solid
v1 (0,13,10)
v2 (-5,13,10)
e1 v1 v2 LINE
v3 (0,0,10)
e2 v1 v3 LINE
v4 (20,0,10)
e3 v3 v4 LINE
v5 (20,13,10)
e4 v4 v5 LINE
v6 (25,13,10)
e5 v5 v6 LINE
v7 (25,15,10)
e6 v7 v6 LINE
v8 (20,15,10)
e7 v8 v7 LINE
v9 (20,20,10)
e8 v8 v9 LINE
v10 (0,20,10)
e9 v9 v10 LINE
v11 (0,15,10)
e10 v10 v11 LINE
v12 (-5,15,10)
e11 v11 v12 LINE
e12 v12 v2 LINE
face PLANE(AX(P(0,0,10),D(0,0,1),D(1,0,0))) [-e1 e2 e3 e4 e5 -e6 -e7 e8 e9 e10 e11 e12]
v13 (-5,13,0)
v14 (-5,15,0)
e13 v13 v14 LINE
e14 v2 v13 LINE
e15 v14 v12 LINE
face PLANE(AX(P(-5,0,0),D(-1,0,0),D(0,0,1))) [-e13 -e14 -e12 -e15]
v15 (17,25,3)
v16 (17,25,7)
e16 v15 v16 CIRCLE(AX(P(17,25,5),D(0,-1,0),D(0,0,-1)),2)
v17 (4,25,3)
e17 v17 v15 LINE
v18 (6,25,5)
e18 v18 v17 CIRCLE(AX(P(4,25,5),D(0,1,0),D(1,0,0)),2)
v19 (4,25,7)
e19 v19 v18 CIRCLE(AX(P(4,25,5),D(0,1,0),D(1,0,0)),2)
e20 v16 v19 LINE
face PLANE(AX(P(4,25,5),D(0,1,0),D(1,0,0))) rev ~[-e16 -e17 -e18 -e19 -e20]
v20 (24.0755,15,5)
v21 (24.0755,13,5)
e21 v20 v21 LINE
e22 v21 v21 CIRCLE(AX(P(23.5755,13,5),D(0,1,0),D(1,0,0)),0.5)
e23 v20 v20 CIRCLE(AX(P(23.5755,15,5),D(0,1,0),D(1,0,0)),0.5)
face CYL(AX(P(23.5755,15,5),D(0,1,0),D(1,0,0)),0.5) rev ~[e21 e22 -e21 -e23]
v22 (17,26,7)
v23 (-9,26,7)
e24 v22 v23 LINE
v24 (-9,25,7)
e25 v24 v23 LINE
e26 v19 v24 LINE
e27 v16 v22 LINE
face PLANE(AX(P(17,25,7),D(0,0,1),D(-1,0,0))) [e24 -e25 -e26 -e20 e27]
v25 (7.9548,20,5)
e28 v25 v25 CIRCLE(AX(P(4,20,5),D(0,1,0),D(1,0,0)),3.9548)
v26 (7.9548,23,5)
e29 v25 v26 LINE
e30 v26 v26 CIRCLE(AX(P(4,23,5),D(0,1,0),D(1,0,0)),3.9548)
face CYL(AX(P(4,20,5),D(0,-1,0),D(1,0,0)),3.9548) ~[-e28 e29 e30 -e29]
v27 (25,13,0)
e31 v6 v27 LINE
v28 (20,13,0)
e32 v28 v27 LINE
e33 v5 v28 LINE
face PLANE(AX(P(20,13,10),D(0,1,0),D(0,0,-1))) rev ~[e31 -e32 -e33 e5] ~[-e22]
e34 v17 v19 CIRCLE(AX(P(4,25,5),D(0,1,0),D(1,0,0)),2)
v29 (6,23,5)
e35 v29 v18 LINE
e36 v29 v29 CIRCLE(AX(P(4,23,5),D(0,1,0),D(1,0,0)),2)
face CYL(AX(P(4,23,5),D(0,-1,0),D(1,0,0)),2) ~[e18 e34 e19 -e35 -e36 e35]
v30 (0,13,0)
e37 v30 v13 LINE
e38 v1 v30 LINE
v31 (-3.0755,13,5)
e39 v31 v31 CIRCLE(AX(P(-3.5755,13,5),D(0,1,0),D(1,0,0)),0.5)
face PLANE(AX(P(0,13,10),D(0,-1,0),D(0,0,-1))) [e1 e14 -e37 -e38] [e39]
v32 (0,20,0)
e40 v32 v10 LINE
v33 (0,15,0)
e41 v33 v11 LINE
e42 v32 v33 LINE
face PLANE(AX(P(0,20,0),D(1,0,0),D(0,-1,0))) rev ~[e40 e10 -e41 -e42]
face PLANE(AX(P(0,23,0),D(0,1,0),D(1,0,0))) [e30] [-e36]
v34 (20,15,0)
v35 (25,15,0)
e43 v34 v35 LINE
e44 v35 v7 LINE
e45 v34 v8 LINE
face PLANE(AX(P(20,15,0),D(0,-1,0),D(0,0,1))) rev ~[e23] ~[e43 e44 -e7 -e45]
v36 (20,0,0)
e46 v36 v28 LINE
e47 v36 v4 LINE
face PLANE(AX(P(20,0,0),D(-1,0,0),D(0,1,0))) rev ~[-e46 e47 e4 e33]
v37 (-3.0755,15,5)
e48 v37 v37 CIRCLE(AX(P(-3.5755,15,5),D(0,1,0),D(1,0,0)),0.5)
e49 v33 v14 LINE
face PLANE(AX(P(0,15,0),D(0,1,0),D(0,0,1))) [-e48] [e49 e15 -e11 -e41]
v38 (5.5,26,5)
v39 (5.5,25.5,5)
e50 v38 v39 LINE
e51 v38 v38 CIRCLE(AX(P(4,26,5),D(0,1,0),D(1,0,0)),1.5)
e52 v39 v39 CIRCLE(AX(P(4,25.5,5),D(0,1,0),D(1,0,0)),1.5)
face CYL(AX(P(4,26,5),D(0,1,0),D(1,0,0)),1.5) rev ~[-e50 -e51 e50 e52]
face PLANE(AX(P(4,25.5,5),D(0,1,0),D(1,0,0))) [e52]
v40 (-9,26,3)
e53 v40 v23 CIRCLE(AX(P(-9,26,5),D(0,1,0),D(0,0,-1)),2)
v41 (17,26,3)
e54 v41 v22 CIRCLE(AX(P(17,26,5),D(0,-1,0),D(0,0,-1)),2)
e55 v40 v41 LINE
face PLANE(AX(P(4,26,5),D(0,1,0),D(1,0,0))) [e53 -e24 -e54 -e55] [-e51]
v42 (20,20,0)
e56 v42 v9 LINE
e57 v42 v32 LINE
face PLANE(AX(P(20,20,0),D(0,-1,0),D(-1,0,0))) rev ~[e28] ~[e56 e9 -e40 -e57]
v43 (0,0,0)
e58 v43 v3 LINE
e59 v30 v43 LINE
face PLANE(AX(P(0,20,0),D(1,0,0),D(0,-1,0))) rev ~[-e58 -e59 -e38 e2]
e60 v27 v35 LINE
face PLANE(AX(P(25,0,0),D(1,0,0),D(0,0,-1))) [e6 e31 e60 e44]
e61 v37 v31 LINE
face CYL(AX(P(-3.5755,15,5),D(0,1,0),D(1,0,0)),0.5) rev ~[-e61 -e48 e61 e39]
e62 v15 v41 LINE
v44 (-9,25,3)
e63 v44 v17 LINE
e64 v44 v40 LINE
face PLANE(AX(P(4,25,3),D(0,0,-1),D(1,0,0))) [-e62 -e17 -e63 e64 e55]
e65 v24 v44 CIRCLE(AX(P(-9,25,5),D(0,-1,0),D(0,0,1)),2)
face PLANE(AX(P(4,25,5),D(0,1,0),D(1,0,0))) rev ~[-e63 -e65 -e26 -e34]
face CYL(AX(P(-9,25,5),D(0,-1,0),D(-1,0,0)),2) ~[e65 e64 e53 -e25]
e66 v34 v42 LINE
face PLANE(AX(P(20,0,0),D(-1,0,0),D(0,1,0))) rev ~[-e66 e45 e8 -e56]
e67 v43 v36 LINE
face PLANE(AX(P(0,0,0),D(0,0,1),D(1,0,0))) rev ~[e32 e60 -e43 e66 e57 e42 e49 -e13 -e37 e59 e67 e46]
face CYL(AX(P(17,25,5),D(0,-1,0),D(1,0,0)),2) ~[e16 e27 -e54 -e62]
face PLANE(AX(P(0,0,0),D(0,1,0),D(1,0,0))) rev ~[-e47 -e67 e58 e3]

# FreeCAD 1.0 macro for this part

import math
import FreeCAD as App
import Part
import Sketcher

V = App.Vector
Q = App.Units.Quantity


def add_polygon(sketch, points):
    """Adds a closed chain of lines whose ends are joined by coincident constraints."""
    first, n = sketch.GeometryCount, len(points)
    for a, b in zip(points, points[1:] + points[:1]):
        sketch.addGeometry(Part.LineSegment(App.Vector(*a, 0), App.Vector(*b, 0)), False)
    for i in range(n):
        sketch.addConstraint(Sketcher.Constraint("Coincident", first + i, 2, first + (i + 1) % n, 1))

doc = App.newDocument("Part")
body = doc.addObject("PartDesign::Body", "Body")

# Sketch on XY plane
sketch1 = doc.addObject("Sketcher::SketchObject", "Sketch")
body.addObject(sketch1)
sketch1.AttachmentSupport = (doc.XY_Plane, [""])
sketch1.MapMode = "FlatFace"
add_polygon(sketch1, [(0, 20), (0, 0), (20, 0), (20, 20)])  # lines 0-3
sketch1.addConstraint([
    Sketcher.Constraint("Vertical", 0),
    Sketcher.Constraint("Horizontal", 1),
    Sketcher.Constraint("Vertical", 2),
    Sketcher.Constraint("Horizontal", 3),
    Sketcher.Constraint("Coincident", 0, 2, -1, 1),
    Sketcher.Constraint("Equal", 3, 0),
    Sketcher.Constraint("DistanceX", 1, 1, 1, 2, Q("20 mm")),
])
pad1 = doc.addObject("PartDesign::Pad", "Pad")
body.addObject(pad1)
pad1.Profile = sketch1
pad1.Length = 10

# Sketch on YZ plane
sketch2 = doc.addObject("Sketcher::SketchObject", "Sketch001")
body.addObject(sketch2)
sketch2.AttachmentSupport = (doc.YZ_Plane, [""])
sketch2.MapMode = "FlatFace"
sketch2.AttachmentOffset = App.Placement(V(0, 0, 20), App.Rotation())
add_polygon(sketch2, [(13, 10), (13, 0), (15, 0), (15, 10)])  # lines 0-3
sketch2.addConstraint([
    Sketcher.Constraint("Vertical", 0),
    Sketcher.Constraint("Horizontal", 1),
    Sketcher.Constraint("Vertical", 2),
    Sketcher.Constraint("Horizontal", 3),
    Sketcher.Constraint("PointOnObject", 0, 2, -1),
    Sketcher.Constraint("DistanceX", 1, 1, 1, 2, Q("2 mm")),
    Sketcher.Constraint("DistanceY", 0, 2, 0, 1, Q("10 mm")),
    Sketcher.Constraint("DistanceX", -1, 1, 0, 2, Q("13 mm")),
])
pad2 = doc.addObject("PartDesign::Pad", "Pad001")
body.addObject(pad2)
pad2.Profile = sketch2
pad2.Length = 5

# Sketch on YZ plane
sketch3 = doc.addObject("Sketcher::SketchObject", "Sketch002")
body.addObject(sketch3)
sketch3.AttachmentSupport = (doc.YZ_Plane, [""])
sketch3.MapMode = "FlatFace"
add_polygon(sketch3, [(13, 10), (15, 10), (15, 0), (13, 0)])  # lines 0-3
sketch3.addConstraint([
    Sketcher.Constraint("Horizontal", 0),
    Sketcher.Constraint("Vertical", 1),
    Sketcher.Constraint("Horizontal", 2),
    Sketcher.Constraint("Vertical", 3),
    Sketcher.Constraint("PointOnObject", 1, 2, -1),
    Sketcher.Constraint("DistanceX", 0, 1, 0, 2, Q("2 mm")),
    Sketcher.Constraint("DistanceY", 1, 2, 1, 1, Q("10 mm")),
    Sketcher.Constraint("DistanceX", -1, 1, 0, 2, Q("15 mm")),
])
pad3 = doc.addObject("PartDesign::Pad", "Pad002")
body.addObject(pad3)
pad3.Profile = sketch3
pad3.Length = 5
pad3.Reversed = True

# Sketch on XZ plane
sketch4 = doc.addObject("Sketcher::SketchObject", "Sketch003")
body.addObject(sketch4)
sketch4.AttachmentSupport = (doc.XZ_Plane, [""])
sketch4.MapMode = "FlatFace"
sketch4.AttachmentOffset = App.Placement(V(0, 0, -15), App.Rotation())
sketch4.addGeometry([
    Part.Circle(V(-3.5755, 5, 0), V(0, 0, 1), 0.5),
    Part.Circle(V(23.5755, 5, 0), V(0, 0, 1), 0.5),
], False)
sketch4.addConstraint([
    Sketcher.Constraint("Equal", 0, 1),
    Sketcher.Constraint("Horizontal", 0, 3, 1, 3),
    Sketcher.Constraint("Diameter", 0, Q("1 mm")),
    Sketcher.Constraint("DistanceY", -1, 1, 0, 3, Q("5 mm")),
    Sketcher.Constraint("DistanceX", 0, 3, 1, 3, Q("27.151 mm")),
    Sketcher.Constraint("DistanceX", 0, 3, -1, 1, Q("3.5755 mm")),
])
pocket1 = doc.addObject("PartDesign::Pocket", "Pocket")
body.addObject(pocket1)
pocket1.Profile = sketch4
pocket1.Type = "ThroughAll"
pocket1.Reversed = True

# Sketch on XZ plane
sketch5 = doc.addObject("Sketcher::SketchObject", "Sketch004")
body.addObject(sketch5)
sketch5.AttachmentSupport = (doc.XZ_Plane, [""])
sketch5.MapMode = "FlatFace"
sketch5.AttachmentOffset = App.Placement(V(0, 0, -20), App.Rotation())
sketch5.addGeometry(Part.Circle(V(4, 5, 0), V(0, 0, 1), 3.9548), False)
sketch5.addConstraint([
    Sketcher.Constraint("DistanceX", -1, 1, 0, 3, Q("4 mm")),
    Sketcher.Constraint("DistanceY", -1, 1, 0, 3, Q("5 mm")),
    Sketcher.Constraint("Diameter", 0, Q("7.9096 mm")),
])
pad4 = doc.addObject("PartDesign::Pad", "Pad003")
body.addObject(pad4)
pad4.Profile = sketch5
pad4.Length = 3
pad4.Reversed = True

# Sketch on XZ plane
sketch6 = doc.addObject("Sketcher::SketchObject", "Sketch005")
body.addObject(sketch6)
sketch6.AttachmentSupport = (doc.XZ_Plane, [""])
sketch6.MapMode = "FlatFace"
sketch6.AttachmentOffset = App.Placement(V(0, 0, -23), App.Rotation())
sketch6.addGeometry(Part.Circle(V(4, 5, 0), V(0, 0, 1), 2), False)
sketch6.addConstraint([
    Sketcher.Constraint("Diameter", 0, Q("4 mm")),
    Sketcher.Constraint("DistanceX", -1, 1, 0, 3, Q("4 mm")),
    Sketcher.Constraint("DistanceY", -1, 1, 0, 3, Q("5 mm")),
])
pad5 = doc.addObject("PartDesign::Pad", "Pad004")
body.addObject(pad5)
pad5.Profile = sketch6
pad5.Length = 2
pad5.Reversed = True

# Sketch on XZ plane
sketch7 = doc.addObject("Sketcher::SketchObject", "Sketch006")
body.addObject(sketch7)
sketch7.AttachmentSupport = (doc.XZ_Plane, [""])
sketch7.MapMode = "FlatFace"
sketch7.AttachmentOffset = App.Placement(V(0, 0, -25), App.Rotation())
sketch7.addGeometry([
    Part.ArcOfCircle(Part.Circle(V(17, 5, 0), V(0, 0, 1), 2), math.radians(-90), math.radians(90)),
    Part.LineSegment(V(17, 3, 0), V(-9, 3, 0)),
    Part.ArcOfCircle(Part.Circle(V(-9, 5, 0), V(0, 0, 1), 2), math.radians(90), math.radians(270)),
    Part.LineSegment(V(-9, 7, 0), V(17, 7, 0)),
], False)
sketch7.addConstraint([
    Sketcher.Constraint("Tangent", 0, 1, 1, 1),
    Sketcher.Constraint("Tangent", 1, 2, 2, 2),
    Sketcher.Constraint("Tangent", 2, 1, 3, 1),
    Sketcher.Constraint("Tangent", 3, 2, 0, 2),
    Sketcher.Constraint("Horizontal", 1),
    Sketcher.Constraint("Horizontal", 3),
    Sketcher.Constraint("Radius", 0, Q("2 mm")),
    Sketcher.Constraint("DistanceX", 1, 2, 1, 1, Q("26 mm")),
    Sketcher.Constraint("DistanceX", -1, 1, 0, 3, Q("17 mm")),
    Sketcher.Constraint("DistanceY", -1, 1, 0, 3, Q("5 mm")),
])
pad6 = doc.addObject("PartDesign::Pad", "Pad005")
body.addObject(pad6)
pad6.Profile = sketch7
pad6.Length = 1
pad6.Reversed = True

# Sketch on XZ plane
sketch8 = doc.addObject("Sketcher::SketchObject", "Sketch007")
body.addObject(sketch8)
sketch8.AttachmentSupport = (doc.XZ_Plane, [""])
sketch8.MapMode = "FlatFace"
sketch8.AttachmentOffset = App.Placement(V(0, 0, -26), App.Rotation())
sketch8.addGeometry(Part.Circle(V(4, 5, 0), V(0, 0, 1), 1.5), False)
sketch8.addConstraint([
    Sketcher.Constraint("Diameter", 0, Q("3 mm")),
    Sketcher.Constraint("DistanceX", -1, 1, 0, 3, Q("4 mm")),
    Sketcher.Constraint("DistanceY", -1, 1, 0, 3, Q("5 mm")),
])
pocket2 = doc.addObject("PartDesign::Pocket", "Pocket001")
body.addObject(pocket2)
pocket2.Profile = sketch8
pocket2.Length = 0.5
pocket2.Reversed = True

doc.recompute()
